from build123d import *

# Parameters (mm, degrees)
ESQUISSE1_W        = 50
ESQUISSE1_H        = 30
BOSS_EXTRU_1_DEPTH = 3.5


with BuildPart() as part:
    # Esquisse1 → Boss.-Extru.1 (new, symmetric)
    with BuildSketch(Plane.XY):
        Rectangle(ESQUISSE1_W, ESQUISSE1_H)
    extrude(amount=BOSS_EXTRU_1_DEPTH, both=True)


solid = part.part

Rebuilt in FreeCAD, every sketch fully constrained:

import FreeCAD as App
import Part
import Sketcher
Q = App.Units.Quantity

doc = App.newDocument("Part")
body = doc.addObject("PartDesign::Body", "Body")

sketch1 = body.newObject("Sketcher::SketchObject", "Sketch")
sketch1.AttachmentSupport = (doc.getObject("XY_Plane"), [""])
sketch1.MapMode = "FlatFace"
sketch1.addGeometry(Part.LineSegment(App.Vector(-25, 15, 0), App.Vector(-25, -15, 0)), False)
sketch1.addGeometry(Part.LineSegment(App.Vector(-25, -15, 0), App.Vector(25, -15, 0)), False)
sketch1.addGeometry(Part.LineSegment(App.Vector(25, -15, 0), App.Vector(25, 15, 0)), False)
sketch1.addGeometry(Part.LineSegment(App.Vector(25, 15, 0), App.Vector(-25, 15, 0)), False)
sketch1.addConstraint(Sketcher.Constraint("Coincident", 0, 2, 1, 1))
sketch1.addConstraint(Sketcher.Constraint("Coincident", 1, 2, 2, 1))
sketch1.addConstraint(Sketcher.Constraint("Coincident", 2, 2, 3, 1))
sketch1.addConstraint(Sketcher.Constraint("Coincident", 3, 2, 0, 1))
sketch1.addConstraint(Sketcher.Constraint("Vertical", 0))
sketch1.addConstraint(Sketcher.Constraint("Horizontal", 1))
sketch1.addConstraint(Sketcher.Constraint("Vertical", 2))
sketch1.addConstraint(Sketcher.Constraint("Horizontal", 3))
sketch1.addConstraint(Sketcher.Constraint("Symmetric", 0, 2, 2, 2, -1, 1))
sketch1.addConstraint(Sketcher.Constraint("DistanceX", 1, 1, 1, 2, Q("50 mm")))
sketch1.addConstraint(Sketcher.Constraint("DistanceY", 0, 2, 0, 1, Q("30 mm")))
pad1 = body.newObject("PartDesign::Pad", "Pad")
pad1.Profile = sketch1
pad1.Length = 7
pad1.Midplane = True

doc.recompute()
